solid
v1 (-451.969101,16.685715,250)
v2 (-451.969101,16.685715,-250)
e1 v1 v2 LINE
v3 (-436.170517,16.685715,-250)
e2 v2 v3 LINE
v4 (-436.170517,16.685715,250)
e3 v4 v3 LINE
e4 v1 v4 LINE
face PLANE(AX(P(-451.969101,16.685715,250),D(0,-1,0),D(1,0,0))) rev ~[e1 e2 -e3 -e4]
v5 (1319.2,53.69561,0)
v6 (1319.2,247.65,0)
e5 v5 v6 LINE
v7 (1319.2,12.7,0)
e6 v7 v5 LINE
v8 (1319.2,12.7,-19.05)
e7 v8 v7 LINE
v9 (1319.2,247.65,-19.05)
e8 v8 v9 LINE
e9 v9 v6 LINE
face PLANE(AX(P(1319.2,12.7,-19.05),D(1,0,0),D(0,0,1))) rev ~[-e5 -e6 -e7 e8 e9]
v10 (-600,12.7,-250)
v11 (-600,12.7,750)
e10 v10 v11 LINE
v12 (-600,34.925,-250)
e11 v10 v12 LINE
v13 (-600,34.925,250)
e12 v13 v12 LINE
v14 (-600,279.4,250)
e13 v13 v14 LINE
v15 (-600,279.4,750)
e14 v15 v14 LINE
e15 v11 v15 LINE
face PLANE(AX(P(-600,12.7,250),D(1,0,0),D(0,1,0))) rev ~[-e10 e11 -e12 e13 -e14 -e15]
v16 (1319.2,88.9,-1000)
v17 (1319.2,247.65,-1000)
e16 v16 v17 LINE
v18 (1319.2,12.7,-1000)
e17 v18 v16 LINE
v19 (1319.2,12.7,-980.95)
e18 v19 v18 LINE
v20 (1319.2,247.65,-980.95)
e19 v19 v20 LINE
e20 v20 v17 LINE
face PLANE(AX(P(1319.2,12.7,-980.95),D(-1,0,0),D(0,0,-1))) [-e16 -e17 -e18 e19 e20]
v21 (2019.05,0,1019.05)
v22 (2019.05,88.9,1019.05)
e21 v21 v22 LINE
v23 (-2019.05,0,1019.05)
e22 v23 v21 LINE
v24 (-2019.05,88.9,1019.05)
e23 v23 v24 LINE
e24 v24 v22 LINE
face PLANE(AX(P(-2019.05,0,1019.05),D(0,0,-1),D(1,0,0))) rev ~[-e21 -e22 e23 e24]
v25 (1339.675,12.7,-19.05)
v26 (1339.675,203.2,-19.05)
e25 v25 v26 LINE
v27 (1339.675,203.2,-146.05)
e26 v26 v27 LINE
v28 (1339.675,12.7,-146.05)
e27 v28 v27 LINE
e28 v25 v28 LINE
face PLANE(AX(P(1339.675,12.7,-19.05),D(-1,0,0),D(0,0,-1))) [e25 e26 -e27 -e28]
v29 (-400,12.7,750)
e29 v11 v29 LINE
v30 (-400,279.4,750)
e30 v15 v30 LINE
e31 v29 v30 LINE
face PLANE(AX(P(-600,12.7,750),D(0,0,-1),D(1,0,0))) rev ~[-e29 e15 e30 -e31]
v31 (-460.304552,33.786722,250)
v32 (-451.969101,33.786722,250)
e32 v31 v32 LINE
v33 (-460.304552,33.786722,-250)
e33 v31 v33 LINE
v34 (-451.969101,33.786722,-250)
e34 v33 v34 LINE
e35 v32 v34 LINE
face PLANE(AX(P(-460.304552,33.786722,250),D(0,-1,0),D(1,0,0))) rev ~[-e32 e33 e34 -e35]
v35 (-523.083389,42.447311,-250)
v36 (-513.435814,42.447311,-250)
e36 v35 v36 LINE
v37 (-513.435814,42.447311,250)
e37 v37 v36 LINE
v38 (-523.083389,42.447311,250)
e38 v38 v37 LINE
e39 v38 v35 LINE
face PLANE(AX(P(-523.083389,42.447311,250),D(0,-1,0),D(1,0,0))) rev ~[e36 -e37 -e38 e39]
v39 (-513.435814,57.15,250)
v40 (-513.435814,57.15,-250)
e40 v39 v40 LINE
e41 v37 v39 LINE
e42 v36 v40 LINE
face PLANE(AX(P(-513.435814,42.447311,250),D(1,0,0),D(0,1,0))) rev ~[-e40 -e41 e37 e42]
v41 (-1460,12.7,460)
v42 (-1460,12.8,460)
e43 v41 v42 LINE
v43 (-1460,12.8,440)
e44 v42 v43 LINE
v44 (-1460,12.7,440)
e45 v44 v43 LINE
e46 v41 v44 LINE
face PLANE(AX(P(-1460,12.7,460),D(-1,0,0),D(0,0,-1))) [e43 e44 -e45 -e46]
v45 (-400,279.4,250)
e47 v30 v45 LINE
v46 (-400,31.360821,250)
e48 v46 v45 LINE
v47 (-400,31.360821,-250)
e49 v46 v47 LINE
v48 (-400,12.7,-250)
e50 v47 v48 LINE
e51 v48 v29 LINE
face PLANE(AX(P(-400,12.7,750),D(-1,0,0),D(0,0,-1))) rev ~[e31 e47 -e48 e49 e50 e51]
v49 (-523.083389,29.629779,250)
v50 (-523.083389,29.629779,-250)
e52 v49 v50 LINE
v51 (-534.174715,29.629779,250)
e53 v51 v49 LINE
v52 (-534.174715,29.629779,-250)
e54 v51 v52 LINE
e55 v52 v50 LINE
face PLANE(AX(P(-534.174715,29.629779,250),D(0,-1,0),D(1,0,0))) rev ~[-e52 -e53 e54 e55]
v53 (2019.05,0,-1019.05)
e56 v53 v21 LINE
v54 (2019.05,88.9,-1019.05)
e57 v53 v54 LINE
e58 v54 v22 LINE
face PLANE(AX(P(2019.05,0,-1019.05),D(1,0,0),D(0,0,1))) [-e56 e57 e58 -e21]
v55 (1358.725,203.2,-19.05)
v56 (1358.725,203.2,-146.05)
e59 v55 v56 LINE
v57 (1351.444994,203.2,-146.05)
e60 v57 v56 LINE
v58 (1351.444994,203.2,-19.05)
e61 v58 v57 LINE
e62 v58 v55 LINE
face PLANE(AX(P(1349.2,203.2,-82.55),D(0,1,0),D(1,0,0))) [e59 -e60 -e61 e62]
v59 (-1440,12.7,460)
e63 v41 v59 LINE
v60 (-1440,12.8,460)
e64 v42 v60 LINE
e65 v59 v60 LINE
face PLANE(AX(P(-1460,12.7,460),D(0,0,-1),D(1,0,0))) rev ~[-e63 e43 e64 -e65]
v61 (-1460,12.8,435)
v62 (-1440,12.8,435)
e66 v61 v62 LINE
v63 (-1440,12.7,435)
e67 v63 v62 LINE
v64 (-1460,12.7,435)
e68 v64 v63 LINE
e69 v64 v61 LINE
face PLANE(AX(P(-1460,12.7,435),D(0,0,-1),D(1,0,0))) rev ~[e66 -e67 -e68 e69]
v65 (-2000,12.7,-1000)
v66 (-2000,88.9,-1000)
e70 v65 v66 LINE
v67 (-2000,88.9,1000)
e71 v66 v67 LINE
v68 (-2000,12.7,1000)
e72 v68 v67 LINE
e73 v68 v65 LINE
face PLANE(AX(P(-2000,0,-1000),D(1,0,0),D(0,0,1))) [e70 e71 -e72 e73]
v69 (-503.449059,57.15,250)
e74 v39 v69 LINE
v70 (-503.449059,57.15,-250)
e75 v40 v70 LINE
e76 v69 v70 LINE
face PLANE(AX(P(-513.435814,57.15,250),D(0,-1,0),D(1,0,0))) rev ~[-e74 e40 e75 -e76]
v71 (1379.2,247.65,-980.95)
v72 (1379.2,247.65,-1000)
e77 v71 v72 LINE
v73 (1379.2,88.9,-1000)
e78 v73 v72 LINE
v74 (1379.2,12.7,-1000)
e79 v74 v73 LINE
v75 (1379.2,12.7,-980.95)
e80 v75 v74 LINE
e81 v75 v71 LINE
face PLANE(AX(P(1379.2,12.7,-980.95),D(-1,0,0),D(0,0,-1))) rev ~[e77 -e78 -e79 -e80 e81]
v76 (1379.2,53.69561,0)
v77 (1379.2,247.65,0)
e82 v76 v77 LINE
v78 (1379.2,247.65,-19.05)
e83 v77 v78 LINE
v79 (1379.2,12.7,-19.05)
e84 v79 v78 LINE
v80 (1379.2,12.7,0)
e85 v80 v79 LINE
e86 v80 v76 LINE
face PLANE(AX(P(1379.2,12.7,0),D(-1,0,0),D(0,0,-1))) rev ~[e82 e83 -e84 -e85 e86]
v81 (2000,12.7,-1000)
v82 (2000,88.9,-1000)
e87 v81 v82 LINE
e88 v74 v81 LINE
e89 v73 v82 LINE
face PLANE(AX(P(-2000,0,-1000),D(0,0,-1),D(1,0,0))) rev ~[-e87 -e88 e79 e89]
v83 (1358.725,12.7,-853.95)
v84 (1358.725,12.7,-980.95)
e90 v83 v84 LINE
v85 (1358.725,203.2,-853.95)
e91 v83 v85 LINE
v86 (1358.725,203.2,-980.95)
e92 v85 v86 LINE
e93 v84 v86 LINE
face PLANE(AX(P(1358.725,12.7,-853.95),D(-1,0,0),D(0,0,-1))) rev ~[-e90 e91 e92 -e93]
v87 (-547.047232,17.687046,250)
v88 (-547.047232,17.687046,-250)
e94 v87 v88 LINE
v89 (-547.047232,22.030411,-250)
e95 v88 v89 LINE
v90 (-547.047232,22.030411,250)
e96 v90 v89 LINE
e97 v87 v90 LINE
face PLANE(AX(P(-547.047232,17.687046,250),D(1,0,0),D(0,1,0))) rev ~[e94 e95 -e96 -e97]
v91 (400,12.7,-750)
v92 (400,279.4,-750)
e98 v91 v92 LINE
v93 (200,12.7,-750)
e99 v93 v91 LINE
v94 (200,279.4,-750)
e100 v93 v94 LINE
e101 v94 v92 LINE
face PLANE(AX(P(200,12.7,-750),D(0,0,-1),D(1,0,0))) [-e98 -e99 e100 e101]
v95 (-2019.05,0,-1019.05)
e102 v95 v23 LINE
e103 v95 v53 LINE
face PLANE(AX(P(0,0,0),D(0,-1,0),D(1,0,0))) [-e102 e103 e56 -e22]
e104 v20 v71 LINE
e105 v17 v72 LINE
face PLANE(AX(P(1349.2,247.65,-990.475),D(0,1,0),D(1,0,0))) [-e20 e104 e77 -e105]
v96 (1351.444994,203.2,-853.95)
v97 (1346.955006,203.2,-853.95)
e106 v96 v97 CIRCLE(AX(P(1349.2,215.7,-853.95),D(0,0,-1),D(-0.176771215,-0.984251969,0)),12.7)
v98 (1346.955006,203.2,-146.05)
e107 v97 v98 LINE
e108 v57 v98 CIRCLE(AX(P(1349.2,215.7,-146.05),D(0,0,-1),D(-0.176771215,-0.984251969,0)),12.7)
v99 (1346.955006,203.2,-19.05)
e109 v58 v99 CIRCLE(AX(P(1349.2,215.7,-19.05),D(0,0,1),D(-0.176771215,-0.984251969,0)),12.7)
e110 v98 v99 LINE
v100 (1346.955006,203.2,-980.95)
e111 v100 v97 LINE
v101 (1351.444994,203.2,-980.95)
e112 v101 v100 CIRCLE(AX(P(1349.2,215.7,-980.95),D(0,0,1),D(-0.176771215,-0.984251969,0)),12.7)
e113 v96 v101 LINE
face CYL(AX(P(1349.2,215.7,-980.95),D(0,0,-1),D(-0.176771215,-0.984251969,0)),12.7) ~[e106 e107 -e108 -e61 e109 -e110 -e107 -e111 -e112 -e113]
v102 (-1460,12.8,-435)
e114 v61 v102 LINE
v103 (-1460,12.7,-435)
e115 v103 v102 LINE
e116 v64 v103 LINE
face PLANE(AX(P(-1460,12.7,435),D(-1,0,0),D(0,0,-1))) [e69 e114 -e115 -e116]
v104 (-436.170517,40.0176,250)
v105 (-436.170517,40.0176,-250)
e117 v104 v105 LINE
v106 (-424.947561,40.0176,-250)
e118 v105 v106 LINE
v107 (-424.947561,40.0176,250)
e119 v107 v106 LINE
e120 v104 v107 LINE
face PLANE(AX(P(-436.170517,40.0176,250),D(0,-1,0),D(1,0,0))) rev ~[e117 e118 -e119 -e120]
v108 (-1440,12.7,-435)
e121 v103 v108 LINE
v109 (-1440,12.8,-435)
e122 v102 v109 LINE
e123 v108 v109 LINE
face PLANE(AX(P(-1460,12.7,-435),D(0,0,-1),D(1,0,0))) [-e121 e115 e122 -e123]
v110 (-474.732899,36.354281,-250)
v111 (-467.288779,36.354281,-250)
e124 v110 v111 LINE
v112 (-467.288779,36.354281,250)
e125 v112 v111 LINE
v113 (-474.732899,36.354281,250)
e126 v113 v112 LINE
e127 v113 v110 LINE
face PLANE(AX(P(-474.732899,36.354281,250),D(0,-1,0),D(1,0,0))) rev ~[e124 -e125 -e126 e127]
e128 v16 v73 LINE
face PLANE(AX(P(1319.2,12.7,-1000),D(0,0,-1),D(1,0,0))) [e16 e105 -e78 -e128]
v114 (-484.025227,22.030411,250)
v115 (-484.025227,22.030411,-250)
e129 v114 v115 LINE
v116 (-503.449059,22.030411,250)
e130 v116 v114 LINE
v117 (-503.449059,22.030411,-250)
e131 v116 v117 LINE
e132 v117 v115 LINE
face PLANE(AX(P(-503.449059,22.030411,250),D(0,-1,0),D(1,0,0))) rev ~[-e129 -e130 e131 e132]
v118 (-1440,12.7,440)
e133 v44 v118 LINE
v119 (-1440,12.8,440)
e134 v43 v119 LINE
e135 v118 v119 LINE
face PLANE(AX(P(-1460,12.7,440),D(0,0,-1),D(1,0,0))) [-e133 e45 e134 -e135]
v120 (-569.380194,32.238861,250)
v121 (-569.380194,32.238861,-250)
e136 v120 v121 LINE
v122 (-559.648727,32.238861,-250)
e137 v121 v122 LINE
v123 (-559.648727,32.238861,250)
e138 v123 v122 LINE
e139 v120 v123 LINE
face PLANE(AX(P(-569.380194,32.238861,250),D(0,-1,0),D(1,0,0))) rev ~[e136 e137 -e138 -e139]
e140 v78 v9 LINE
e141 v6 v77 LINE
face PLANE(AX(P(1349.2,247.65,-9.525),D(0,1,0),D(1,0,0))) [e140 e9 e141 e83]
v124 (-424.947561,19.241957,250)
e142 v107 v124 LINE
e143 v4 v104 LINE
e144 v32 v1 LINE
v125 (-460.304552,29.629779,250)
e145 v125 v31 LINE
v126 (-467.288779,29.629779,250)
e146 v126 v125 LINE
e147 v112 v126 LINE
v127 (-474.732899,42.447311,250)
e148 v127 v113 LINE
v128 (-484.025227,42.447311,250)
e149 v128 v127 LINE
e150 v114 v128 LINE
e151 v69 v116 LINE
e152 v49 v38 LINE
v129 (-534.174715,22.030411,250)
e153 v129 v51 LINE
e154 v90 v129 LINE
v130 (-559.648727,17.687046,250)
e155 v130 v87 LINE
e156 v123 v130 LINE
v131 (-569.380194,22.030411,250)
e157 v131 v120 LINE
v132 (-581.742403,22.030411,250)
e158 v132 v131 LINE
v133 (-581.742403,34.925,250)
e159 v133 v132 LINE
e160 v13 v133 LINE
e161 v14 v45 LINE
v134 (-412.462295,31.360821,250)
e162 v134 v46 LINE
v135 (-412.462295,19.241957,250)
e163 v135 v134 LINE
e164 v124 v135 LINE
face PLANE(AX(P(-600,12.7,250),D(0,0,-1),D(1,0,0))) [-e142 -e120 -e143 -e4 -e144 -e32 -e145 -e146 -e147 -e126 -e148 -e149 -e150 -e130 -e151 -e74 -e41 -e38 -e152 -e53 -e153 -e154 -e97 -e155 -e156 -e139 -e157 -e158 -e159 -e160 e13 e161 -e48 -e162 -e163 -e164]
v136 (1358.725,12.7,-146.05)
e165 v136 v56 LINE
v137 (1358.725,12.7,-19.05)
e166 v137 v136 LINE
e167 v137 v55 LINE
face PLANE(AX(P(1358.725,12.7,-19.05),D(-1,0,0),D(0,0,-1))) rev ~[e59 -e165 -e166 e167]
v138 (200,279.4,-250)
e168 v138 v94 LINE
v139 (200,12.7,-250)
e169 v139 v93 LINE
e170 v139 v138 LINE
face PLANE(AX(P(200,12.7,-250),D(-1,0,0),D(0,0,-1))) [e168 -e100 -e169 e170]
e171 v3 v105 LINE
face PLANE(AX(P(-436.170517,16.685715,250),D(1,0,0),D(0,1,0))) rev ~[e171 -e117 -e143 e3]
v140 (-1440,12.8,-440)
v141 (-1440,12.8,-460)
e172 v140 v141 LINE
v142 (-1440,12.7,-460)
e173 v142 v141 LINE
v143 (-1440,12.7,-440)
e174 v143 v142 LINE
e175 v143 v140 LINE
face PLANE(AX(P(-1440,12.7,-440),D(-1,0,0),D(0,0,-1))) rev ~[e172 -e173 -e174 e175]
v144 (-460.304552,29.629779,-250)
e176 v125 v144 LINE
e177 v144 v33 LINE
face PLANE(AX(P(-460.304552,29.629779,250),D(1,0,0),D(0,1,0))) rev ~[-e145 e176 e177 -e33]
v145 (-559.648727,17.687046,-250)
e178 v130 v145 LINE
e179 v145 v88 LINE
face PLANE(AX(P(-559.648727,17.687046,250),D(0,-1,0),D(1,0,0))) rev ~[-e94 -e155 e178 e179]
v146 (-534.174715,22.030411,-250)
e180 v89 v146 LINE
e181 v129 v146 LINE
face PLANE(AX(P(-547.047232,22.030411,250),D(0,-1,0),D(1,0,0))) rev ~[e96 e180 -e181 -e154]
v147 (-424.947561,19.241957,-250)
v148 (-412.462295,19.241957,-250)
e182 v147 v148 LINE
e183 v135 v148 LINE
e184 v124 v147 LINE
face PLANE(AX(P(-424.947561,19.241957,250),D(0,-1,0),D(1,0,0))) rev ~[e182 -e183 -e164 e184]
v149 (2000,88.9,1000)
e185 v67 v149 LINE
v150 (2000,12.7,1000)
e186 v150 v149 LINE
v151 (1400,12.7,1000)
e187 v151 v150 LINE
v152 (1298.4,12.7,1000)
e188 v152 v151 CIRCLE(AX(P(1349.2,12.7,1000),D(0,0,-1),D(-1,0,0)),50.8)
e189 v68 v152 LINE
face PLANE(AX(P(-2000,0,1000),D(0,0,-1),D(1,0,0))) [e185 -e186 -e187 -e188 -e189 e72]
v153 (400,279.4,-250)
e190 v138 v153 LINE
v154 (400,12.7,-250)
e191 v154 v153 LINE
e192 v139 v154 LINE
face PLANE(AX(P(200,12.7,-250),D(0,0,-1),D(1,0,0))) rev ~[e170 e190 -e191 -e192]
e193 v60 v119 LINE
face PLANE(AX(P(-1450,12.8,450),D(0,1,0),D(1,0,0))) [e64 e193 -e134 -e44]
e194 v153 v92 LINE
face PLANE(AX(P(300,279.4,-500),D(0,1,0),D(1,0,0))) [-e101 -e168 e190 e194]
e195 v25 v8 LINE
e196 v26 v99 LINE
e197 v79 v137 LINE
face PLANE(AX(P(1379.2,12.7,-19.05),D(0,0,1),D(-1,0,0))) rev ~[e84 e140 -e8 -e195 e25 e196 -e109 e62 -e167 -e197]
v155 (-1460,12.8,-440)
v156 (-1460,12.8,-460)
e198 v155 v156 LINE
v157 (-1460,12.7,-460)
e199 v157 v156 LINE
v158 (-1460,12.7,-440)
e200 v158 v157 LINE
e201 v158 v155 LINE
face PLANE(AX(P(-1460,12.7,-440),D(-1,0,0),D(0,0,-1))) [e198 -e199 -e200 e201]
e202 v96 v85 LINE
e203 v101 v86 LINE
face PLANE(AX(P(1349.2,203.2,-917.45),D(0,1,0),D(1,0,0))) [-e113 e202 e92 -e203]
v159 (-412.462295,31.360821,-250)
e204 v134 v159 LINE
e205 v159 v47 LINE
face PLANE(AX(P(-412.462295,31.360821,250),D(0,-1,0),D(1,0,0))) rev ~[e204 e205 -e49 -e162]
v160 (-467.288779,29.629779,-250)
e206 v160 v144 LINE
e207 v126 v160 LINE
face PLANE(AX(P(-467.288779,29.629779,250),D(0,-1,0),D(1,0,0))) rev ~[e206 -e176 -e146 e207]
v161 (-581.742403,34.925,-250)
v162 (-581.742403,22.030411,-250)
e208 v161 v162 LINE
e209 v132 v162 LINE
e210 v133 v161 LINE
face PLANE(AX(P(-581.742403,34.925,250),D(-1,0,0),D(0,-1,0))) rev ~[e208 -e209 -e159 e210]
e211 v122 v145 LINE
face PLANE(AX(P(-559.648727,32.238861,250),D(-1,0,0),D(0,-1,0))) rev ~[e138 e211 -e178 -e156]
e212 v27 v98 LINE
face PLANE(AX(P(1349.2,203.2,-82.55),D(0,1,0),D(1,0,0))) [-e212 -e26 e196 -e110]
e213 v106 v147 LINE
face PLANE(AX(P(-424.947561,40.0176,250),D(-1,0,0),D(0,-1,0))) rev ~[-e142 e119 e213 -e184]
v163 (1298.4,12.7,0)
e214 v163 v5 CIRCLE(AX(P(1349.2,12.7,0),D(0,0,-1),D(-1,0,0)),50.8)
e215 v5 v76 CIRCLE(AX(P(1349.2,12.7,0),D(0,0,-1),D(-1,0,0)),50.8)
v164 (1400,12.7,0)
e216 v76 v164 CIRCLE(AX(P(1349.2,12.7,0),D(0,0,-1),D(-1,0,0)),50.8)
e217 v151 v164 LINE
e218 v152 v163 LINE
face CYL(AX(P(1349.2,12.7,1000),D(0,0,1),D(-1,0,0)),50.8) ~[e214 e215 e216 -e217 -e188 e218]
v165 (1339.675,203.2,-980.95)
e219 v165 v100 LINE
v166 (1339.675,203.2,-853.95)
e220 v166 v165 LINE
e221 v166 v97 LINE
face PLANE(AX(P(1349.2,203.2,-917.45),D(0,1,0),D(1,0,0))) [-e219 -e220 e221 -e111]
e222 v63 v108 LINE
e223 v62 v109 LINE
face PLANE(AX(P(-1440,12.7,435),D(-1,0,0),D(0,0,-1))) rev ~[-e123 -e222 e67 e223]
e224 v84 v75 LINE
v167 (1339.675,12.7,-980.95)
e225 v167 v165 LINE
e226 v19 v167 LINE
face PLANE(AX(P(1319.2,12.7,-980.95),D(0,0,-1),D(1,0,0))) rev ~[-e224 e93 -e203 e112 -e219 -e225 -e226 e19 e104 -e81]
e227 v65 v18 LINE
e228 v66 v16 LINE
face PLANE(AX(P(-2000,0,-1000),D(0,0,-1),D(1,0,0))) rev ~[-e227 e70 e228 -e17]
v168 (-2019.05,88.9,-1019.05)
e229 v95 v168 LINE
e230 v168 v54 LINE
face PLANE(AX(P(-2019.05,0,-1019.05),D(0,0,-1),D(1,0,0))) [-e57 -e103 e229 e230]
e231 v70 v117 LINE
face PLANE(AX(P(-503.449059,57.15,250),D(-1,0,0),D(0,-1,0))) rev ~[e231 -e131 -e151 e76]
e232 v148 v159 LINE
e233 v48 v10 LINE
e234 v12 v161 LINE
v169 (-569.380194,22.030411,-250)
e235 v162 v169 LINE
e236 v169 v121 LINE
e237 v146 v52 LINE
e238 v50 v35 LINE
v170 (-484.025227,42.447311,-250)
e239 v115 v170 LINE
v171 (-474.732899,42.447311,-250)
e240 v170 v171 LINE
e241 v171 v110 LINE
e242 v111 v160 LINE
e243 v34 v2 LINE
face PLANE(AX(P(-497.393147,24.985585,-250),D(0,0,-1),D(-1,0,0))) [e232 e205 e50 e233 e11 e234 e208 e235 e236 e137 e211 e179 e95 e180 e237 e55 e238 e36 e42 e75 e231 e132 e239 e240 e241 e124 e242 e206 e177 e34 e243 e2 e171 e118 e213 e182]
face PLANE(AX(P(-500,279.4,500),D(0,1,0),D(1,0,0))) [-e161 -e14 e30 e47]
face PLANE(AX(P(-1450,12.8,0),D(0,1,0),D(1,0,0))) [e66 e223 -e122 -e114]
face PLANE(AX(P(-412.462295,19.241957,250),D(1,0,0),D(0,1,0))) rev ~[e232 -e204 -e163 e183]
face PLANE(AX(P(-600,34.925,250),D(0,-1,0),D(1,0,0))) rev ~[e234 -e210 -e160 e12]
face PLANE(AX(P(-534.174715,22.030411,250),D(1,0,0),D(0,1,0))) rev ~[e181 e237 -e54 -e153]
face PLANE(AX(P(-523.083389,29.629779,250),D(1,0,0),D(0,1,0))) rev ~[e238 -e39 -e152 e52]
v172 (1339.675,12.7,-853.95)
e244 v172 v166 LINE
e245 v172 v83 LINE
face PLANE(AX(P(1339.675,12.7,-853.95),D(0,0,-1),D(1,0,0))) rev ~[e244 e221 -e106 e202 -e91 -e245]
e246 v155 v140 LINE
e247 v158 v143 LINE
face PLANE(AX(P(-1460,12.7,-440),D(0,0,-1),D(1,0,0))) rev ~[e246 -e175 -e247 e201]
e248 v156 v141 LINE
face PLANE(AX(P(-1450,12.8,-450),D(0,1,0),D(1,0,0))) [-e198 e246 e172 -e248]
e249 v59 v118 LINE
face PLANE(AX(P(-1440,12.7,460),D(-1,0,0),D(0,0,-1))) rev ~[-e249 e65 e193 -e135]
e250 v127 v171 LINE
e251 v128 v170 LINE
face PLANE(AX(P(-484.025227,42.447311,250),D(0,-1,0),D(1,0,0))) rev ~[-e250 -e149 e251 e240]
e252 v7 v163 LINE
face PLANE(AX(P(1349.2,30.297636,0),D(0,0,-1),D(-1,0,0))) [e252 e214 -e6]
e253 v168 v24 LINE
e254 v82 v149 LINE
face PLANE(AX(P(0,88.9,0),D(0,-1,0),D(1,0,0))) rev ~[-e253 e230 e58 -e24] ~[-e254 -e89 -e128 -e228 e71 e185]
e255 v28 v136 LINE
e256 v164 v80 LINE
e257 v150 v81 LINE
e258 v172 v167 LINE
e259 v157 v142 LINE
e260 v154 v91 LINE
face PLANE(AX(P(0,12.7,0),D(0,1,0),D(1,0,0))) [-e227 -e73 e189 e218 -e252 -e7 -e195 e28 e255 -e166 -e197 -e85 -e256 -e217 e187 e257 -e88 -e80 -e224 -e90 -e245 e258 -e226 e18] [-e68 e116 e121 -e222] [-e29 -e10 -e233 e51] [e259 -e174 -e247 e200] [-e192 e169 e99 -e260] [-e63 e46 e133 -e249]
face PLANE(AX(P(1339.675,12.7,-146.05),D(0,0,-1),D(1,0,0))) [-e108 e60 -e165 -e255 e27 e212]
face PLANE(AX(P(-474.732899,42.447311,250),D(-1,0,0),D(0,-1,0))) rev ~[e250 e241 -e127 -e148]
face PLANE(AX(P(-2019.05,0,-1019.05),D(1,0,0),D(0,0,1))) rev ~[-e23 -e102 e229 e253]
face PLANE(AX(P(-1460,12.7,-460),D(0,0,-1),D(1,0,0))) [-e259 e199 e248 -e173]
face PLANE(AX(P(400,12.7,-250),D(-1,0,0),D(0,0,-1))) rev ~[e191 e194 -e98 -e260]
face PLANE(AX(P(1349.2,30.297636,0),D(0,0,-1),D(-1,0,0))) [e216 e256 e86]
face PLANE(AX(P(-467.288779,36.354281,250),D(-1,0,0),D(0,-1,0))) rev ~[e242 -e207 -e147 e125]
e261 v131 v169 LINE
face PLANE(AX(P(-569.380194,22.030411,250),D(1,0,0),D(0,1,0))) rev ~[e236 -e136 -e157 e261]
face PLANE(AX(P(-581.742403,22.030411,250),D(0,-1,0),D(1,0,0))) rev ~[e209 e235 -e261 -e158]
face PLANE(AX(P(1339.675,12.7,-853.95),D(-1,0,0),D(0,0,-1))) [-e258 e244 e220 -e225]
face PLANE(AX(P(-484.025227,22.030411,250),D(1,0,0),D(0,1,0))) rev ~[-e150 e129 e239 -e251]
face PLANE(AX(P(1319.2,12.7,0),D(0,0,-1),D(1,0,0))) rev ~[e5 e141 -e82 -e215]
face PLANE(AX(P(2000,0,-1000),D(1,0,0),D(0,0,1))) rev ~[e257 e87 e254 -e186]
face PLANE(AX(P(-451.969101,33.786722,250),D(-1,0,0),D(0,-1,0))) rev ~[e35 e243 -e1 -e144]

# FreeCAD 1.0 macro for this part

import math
import FreeCAD as App
import Part
import Sketcher
Q = App.Units.Quantity

doc = App.newDocument("Part")
body = doc.addObject("PartDesign::Body", "Body")

sketch1 = body.newObject("Sketcher::SketchObject", "Sketch")
sketch1.AttachmentSupport = (doc.getObject("XZ_Plane"), [""])
sketch1.MapMode = "FlatFace"
sketch1.addGeometry([
    Part.LineSegment(App.Vector(-2000, -1000, 0), App.Vector(-2000, 1000, 0)),
    Part.LineSegment(App.Vector(-2000, 1000, 0), App.Vector(2000, 1000, 0)),
    Part.LineSegment(App.Vector(2000, 1000, 0), App.Vector(2000, -1000, 0)),
    Part.LineSegment(App.Vector(2000, -1000, 0), App.Vector(-2000, -1000, 0)),
], False)
sketch1.addConstraint([
    Sketcher.Constraint("Coincident", 0, 2, 1, 1),
    Sketcher.Constraint("Coincident", 1, 2, 2, 1),
    Sketcher.Constraint("Coincident", 2, 2, 3, 1),
    Sketcher.Constraint("Coincident", 3, 2, 0, 1),
    Sketcher.Constraint("Vertical", 0),
    Sketcher.Constraint("Horizontal", 1),
    Sketcher.Constraint("Vertical", 2),
    Sketcher.Constraint("Horizontal", 3),
    Sketcher.Constraint("Symmetric", 0, 2, 2, 2, -1, 1),
    Sketcher.Constraint("DistanceX", 1, 1, 1, 2, Q("4000 mm")),
    Sketcher.Constraint("DistanceY", 0, 1, 0, 2, Q("2000 mm")),
])
pad1 = body.newObject("PartDesign::Pad", "Pad")
pad1.Profile = sketch1
pad1.Length = 12.7
pad1.Reversed = True

sketch2 = body.newObject("Sketcher::SketchObject", "Sketch001")
sketch2.AttachmentSupport = (doc.getObject("XZ_Plane"), [""])
sketch2.MapMode = "FlatFace"
sketch2.addGeometry([
    Part.LineSegment(App.Vector(-2019, 1019, 0), App.Vector(-2019, -1019, 0)),
    Part.LineSegment(App.Vector(-2019, -1019, 0), App.Vector(2019, -1019, 0)),
    Part.LineSegment(App.Vector(2019, -1019, 0), App.Vector(2019, 1019, 0)),
    Part.LineSegment(App.Vector(2019, 1019, 0), App.Vector(-2019, 1019, 0)),
    Part.LineSegment(App.Vector(2000, -1000, 0), App.Vector(-2000, -1000, 0)),
    Part.LineSegment(App.Vector(-2000, -1000, 0), App.Vector(-2000, 1000, 0)),
    Part.LineSegment(App.Vector(-2000, 1000, 0), App.Vector(2000, 1000, 0)),
    Part.LineSegment(App.Vector(2000, 1000, 0), App.Vector(2000, -1000, 0)),
], False)
sketch2.addConstraint([
    Sketcher.Constraint("Coincident", 0, 2, 1, 1),
    Sketcher.Constraint("Coincident", 1, 2, 2, 1),
    Sketcher.Constraint("Coincident", 2, 2, 3, 1),
    Sketcher.Constraint("Coincident", 3, 2, 0, 1),
    Sketcher.Constraint("Coincident", 4, 2, 5, 1),
    Sketcher.Constraint("Coincident", 5, 2, 6, 1),
    Sketcher.Constraint("Coincident", 6, 2, 7, 1),
    Sketcher.Constraint("Coincident", 7, 2, 4, 1),
    Sketcher.Constraint("Vertical", 0),
    Sketcher.Constraint("Horizontal", 1),
    Sketcher.Constraint("Vertical", 2),
    Sketcher.Constraint("Horizontal", 3),
    Sketcher.Constraint("Horizontal", 4),
    Sketcher.Constraint("Vertical", 5),
    Sketcher.Constraint("Horizontal", 6),
    Sketcher.Constraint("Vertical", 7),
    Sketcher.Constraint("Symmetric", 0, 2, 2, 2, -1, 1),
    Sketcher.Constraint("Symmetric", 4, 2, 6, 2, -1, 1),
    Sketcher.Constraint("DistanceX", 4, 2, 4, 1, Q("4000 mm")),
    Sketcher.Constraint("DistanceY", 5, 1, 5, 2, Q("2000 mm")),
    Sketcher.Constraint("DistanceX", 1, 1, 1, 2, Q("4038.1 mm")),
    Sketcher.Constraint("DistanceY", 0, 2, 0, 1, Q("2038.1 mm")),
])
pad2 = body.newObject("PartDesign::Pad", "Pad001")
pad2.Profile = sketch2
pad2.Length = 88.9
pad2.Reversed = True

sketch3 = body.newObject("Sketcher::SketchObject", "Sketch002")
sketch3.AttachmentSupport = (doc.getObject("XZ_Plane"), [""])
sketch3.MapMode = "FlatFace"
sketch3.AttachmentOffset = App.Placement(App.Vector(0, 0, -12.7), App.Rotation())
sketch3.addGeometry([
    Part.LineSegment(App.Vector(-1460, 440, 0), App.Vector(-1460, 460, 0)),
    Part.LineSegment(App.Vector(-1460, 460, 0), App.Vector(-1440, 460, 0)),
    Part.LineSegment(App.Vector(-1440, 460, 0), App.Vector(-1440, 440, 0)),
    Part.LineSegment(App.Vector(-1440, 440, 0), App.Vector(-1460, 440, 0)),
    Part.LineSegment(App.Vector(-1460, -460, 0), App.Vector(-1460, -440, 0)),
    Part.LineSegment(App.Vector(-1460, -440, 0), App.Vector(-1440, -440, 0)),
    Part.LineSegment(App.Vector(-1440, -440, 0), App.Vector(-1440, -460, 0)),
    Part.LineSegment(App.Vector(-1440, -460, 0), App.Vector(-1460, -460, 0)),
], False)
sketch3.addConstraint([
    Sketcher.Constraint("Coincident", 0, 2, 1, 1),
    Sketcher.Constraint("Coincident", 1, 2, 2, 1),
    Sketcher.Constraint("Coincident", 2, 2, 3, 1),
    Sketcher.Constraint("Coincident", 3, 2, 0, 1),
    Sketcher.Constraint("Coincident", 4, 2, 5, 1),
    Sketcher.Constraint("Coincident", 5, 2, 6, 1),
    Sketcher.Constraint("Coincident", 6, 2, 7, 1),
    Sketcher.Constraint("Coincident", 7, 2, 4, 1),
    Sketcher.Constraint("Vertical", 0),
    Sketcher.Constraint("Horizontal", 1),
    Sketcher.Constraint("Vertical", 2),
    Sketcher.Constraint("Horizontal", 3),
    Sketcher.Constraint("Vertical", 4),
    Sketcher.Constraint("Horizontal", 5),
    Sketcher.Constraint("Vertical", 6),
    Sketcher.Constraint("Horizontal", 7),
    Sketcher.Constraint("Symmetric", 3, 2, 4, 2, -1),
    Sketcher.Constraint("Symmetric", 1, 2, 6, 2, -1),
    Sketcher.Constraint("Equal", 7, 0),
    Sketcher.Constraint("DistanceX", 1, 1, 1, 2, Q("20 mm")),
    Sketcher.Constraint("DistanceX", 0, 2, -1, 1, Q("1460 mm")),
    Sketcher.Constraint("DistanceY", -1, 1, 0, 2, Q("460 mm")),
])
pad3 = body.newObject("PartDesign::Pad", "Pad002")
pad3.Profile = sketch3
pad3.Length = 0.1
pad3.Reversed = True

sketch4 = body.newObject("Sketcher::SketchObject", "Sketch003")
sketch4.AttachmentSupport = (doc.getObject("XZ_Plane"), [""])
sketch4.MapMode = "FlatFace"
sketch4.AttachmentOffset = App.Placement(App.Vector(0, 0, -12.7), App.Rotation())
sketch4.addGeometry([
    Part.LineSegment(App.Vector(-1460, -435, 0), App.Vector(-1460, 435, 0)),
    Part.LineSegment(App.Vector(-1460, 435, 0), App.Vector(-1440, 435, 0)),
    Part.LineSegment(App.Vector(-1440, 435, 0), App.Vector(-1440, -435, 0)),
    Part.LineSegment(App.Vector(-1440, -435, 0), App.Vector(-1460, -435, 0)),
], False)
sketch4.addConstraint([
    Sketcher.Constraint("Coincident", 0, 2, 1, 1),
    Sketcher.Constraint("Coincident", 1, 2, 2, 1),
    Sketcher.Constraint("Coincident", 2, 2, 3, 1),
    Sketcher.Constraint("Coincident", 3, 2, 0, 1),
    Sketcher.Constraint("Vertical", 0),
    Sketcher.Constraint("Horizontal", 1),
    Sketcher.Constraint("Vertical", 2),
    Sketcher.Constraint("Horizontal", 3),
    Sketcher.Constraint("DistanceX", 1, 1, 1, 2, Q("20 mm")),
    Sketcher.Constraint("DistanceY", 0, 1, 0, 2, Q("870 mm")),
    Sketcher.Constraint("DistanceX", 0, 2, -1, 1, Q("1460 mm")),
    Sketcher.Constraint("DistanceY", -1, 1, 0, 2, Q("435 mm")),
])
pad4 = body.newObject("PartDesign::Pad", "Pad003")
pad4.Profile = sketch4
pad4.Length = 0.1
pad4.Reversed = True

sketch5 = body.newObject("Sketcher::SketchObject", "Sketch004")
sketch5.AttachmentSupport = (doc.getObject("XY_Plane"), [""])
sketch5.MapMode = "FlatFace"
sketch5.AttachmentOffset = App.Placement(App.Vector(0, 0, 1000), App.Rotation())
sketch5.addGeometry([
    Part.LineSegment(App.Vector(1400, 13, 0), App.Vector(1298, 13, 0)),
    Part.ArcOfCircle(Part.Circle(App.Vector(1349, 13, 0), App.Vector(0, 0, 1), 51), math.radians(0), math.radians(180)),
], False)
sketch5.addConstraint([
    Sketcher.Constraint("Coincident", 0, 1, 1, 1),
    Sketcher.Constraint("Coincident", 1, 2, 0, 2),
    Sketcher.Constraint("Horizontal", 0),
    Sketcher.Constraint("Horizontal", 1, 3, 0, 1),
    Sketcher.Constraint("Radius", 1, Q("50.8 mm")),
    Sketcher.Constraint("DistanceX", -1, 1, 0, 1, Q("1400 mm")),
    Sketcher.Constraint("DistanceY", -1, 1, 1, 3, Q("12.7 mm")),
])
pad5 = body.newObject("PartDesign::Pad", "Pad004")
pad5.Profile = sketch5
pad5.Length = 1000
pad5.Reversed = True

sketch6 = body.newObject("Sketcher::SketchObject", "Sketch005")
sketch6.AttachmentSupport = (doc.getObject("XZ_Plane"), [""])
sketch6.MapMode = "FlatFace"
sketch6.AttachmentOffset = App.Placement(App.Vector(0, 0, -12.7), App.Rotation())
sketch6.addGeometry([
    Part.LineSegment(App.Vector(1319, -19, 0), App.Vector(1319, 0, 0)),
    Part.LineSegment(App.Vector(1319, 0, 0), App.Vector(1379, 0, 0)),
    Part.LineSegment(App.Vector(1379, 0, 0), App.Vector(1379, -19, 0)),
    Part.LineSegment(App.Vector(1379, -19, 0), App.Vector(1319, -19, 0)),
    Part.LineSegment(App.Vector(1319, -1000, 0), App.Vector(1319, -981, 0)),
    Part.LineSegment(App.Vector(1319, -981, 0), App.Vector(1379, -981, 0)),
    Part.LineSegment(App.Vector(1379, -981, 0), App.Vector(1379, -1000, 0)),
    Part.LineSegment(App.Vector(1379, -1000, 0), App.Vector(1319, -1000, 0)),
], False)
sketch6.addConstraint([
    Sketcher.Constraint("Coincident", 0, 2, 1, 1),
    Sketcher.Constraint("Coincident", 1, 2, 2, 1),
    Sketcher.Constraint("Coincident", 2, 2, 3, 1),
    Sketcher.Constraint("Coincident", 3, 2, 0, 1),
    Sketcher.Constraint("Coincident", 4, 2, 5, 1),
    Sketcher.Constraint("Coincident", 5, 2, 6, 1),
    Sketcher.Constraint("Coincident", 6, 2, 7, 1),
    Sketcher.Constraint("Coincident", 7, 2, 4, 1),
    Sketcher.Constraint("Vertical", 0),
    Sketcher.Constraint("Horizontal", 1),
    Sketcher.Constraint("Vertical", 2),
    Sketcher.Constraint("Horizontal", 3),
    Sketcher.Constraint("Vertical", 4),
    Sketcher.Constraint("Horizontal", 5),
    Sketcher.Constraint("Vertical", 6),
    Sketcher.Constraint("Horizontal", 7),
    Sketcher.Constraint("PointOnObject", 0, 2, -1),
    Sketcher.Constraint("Vertical", 3, 2, 4, 2),
    Sketcher.Constraint("Vertical", 2, 2, 5, 2),
    Sketcher.Constraint("Equal", 2, 4),
    Sketcher.Constraint("DistanceX", 1, 1, 1, 2, Q("60 mm")),
    Sketcher.Constraint("DistanceY", 6, 2, -1, 1, Q("1000 mm")),
    Sketcher.Constraint("DistanceY", 0, 1, 0, 2, Q("19.05 mm")),
    Sketcher.Constraint("DistanceX", -1, 1, 0, 2, Q("1319.2 mm")),
])
pad6 = body.newObject("PartDesign::Pad", "Pad005")
pad6.Profile = sketch6
pad6.Length = 234.95
pad6.Reversed = True

sketch7 = body.newObject("Sketcher::SketchObject", "Sketch006")
sketch7.AttachmentSupport = (doc.getObject("XZ_Plane"), [""])
sketch7.MapMode = "FlatFace"
sketch7.AttachmentOffset = App.Placement(App.Vector(0, 0, -12.7), App.Rotation())
sketch7.addGeometry([
    Part.LineSegment(App.Vector(1340, -146, 0), App.Vector(1340, -19, 0)),
    Part.LineSegment(App.Vector(1340, -19, 0), App.Vector(1359, -19, 0)),
    Part.LineSegment(App.Vector(1359, -19, 0), App.Vector(1359, -146, 0)),
    Part.LineSegment(App.Vector(1359, -146, 0), App.Vector(1340, -146, 0)),
    Part.LineSegment(App.Vector(1340, -981, 0), App.Vector(1340, -854, 0)),
    Part.LineSegment(App.Vector(1340, -854, 0), App.Vector(1359, -854, 0)),
    Part.LineSegment(App.Vector(1359, -854, 0), App.Vector(1359, -981, 0)),
    Part.LineSegment(App.Vector(1359, -981, 0), App.Vector(1340, -981, 0)),
], False)
sketch7.addConstraint([
    Sketcher.Constraint("Coincident", 0, 2, 1, 1),
    Sketcher.Constraint("Coincident", 1, 2, 2, 1),
    Sketcher.Constraint("Coincident", 2, 2, 3, 1),
    Sketcher.Constraint("Coincident", 3, 2, 0, 1),
    Sketcher.Constraint("Coincident", 4, 2, 5, 1),
    Sketcher.Constraint("Coincident", 5, 2, 6, 1),
    Sketcher.Constraint("Coincident", 6, 2, 7, 1),
    Sketcher.Constraint("Coincident", 7, 2, 4, 1),
    Sketcher.Constraint("Vertical", 0),
    Sketcher.Constraint("Horizontal", 1),
    Sketcher.Constraint("Vertical", 2),
    Sketcher.Constraint("Horizontal", 3),
    Sketcher.Constraint("Vertical", 4),
    Sketcher.Constraint("Horizontal", 5),
    Sketcher.Constraint("Vertical", 6),
    Sketcher.Constraint("Horizontal", 7),
    Sketcher.Constraint("Vertical", 3, 2, 4, 2),
    Sketcher.Constraint("Vertical", 2, 2, 5, 2),
    Sketcher.Constraint("Equal", 2, 4),
    Sketcher.Constraint("DistanceY", 0, 1, 0, 2, Q("127 mm")),
    Sketcher.Constraint("DistanceX", 1, 1, 1, 2, Q("19.05 mm")),
    Sketcher.Constraint("DistanceY", 4, 2, 3, 2, Q("707.9 mm")),
    Sketcher.Constraint("DistanceY", 0, 2, -1, 1, Q("19.05 mm")),
    Sketcher.Constraint("DistanceX", -1, 1, 0, 2, Q("1339.675 mm")),
])
pad7 = body.newObject("PartDesign::Pad", "Pad006")
pad7.Profile = sketch7
pad7.Length = 190.5
pad7.Reversed = True

sketch8 = body.newObject("Sketcher::SketchObject", "Sketch007")
sketch8.AttachmentSupport = (doc.getObject("XY_Plane"), [""])
sketch8.MapMode = "FlatFace"
sketch8.AttachmentOffset = App.Placement(App.Vector(0, 0, -980.95), App.Rotation())
sketch8.addGeometry(Part.Circle(App.Vector(1349, 216, 0), App.Vector(0, 0, 1), 13), False)
sketch8.addConstraint([
    Sketcher.Constraint("Diameter", 0, Q("25.4 mm")),
    Sketcher.Constraint("DistanceX", -1, 1, 0, 3, Q("1349.2 mm")),
    Sketcher.Constraint("DistanceY", -1, 1, 0, 3, Q("215.7 mm")),
])
pad8 = body.newObject("PartDesign::Pad", "Pad007")
pad8.Profile = sketch8
pad8.Length = 961.9

sketch9 = body.newObject("Sketcher::SketchObject", "Sketch008")
sketch9.AttachmentSupport = (doc.getObject("XZ_Plane"), [""])
sketch9.MapMode = "FlatFace"
sketch9.AttachmentOffset = App.Placement(App.Vector(0, 0, -12.7), App.Rotation())
sketch9.addGeometry([
    Part.LineSegment(App.Vector(-600, 250, 0), App.Vector(-600, 750, 0)),
    Part.LineSegment(App.Vector(-600, 750, 0), App.Vector(-400, 750, 0)),
    Part.LineSegment(App.Vector(-400, 750, 0), App.Vector(-400, 250, 0)),
    Part.LineSegment(App.Vector(-400, 250, 0), App.Vector(-600, 250, 0)),
    Part.LineSegment(App.Vector(200, -750, 0), App.Vector(200, -250, 0)),
    Part.LineSegment(App.Vector(200, -250, 0), App.Vector(400, -250, 0)),
    Part.LineSegment(App.Vector(400, -250, 0), App.Vector(400, -750, 0)),
    Part.LineSegment(App.Vector(400, -750, 0), App.Vector(200, -750, 0)),
], False)
sketch9.addConstraint([
    Sketcher.Constraint("Coincident", 0, 2, 1, 1),
    Sketcher.Constraint("Coincident", 1, 2, 2, 1),
    Sketcher.Constraint("Coincident", 2, 2, 3, 1),
    Sketcher.Constraint("Coincident", 3, 2, 0, 1),
    Sketcher.Constraint("Coincident", 4, 2, 5, 1),
    Sketcher.Constraint("Coincident", 5, 2, 6, 1),
    Sketcher.Constraint("Coincident", 6, 2, 7, 1),
    Sketcher.Constraint("Coincident", 7, 2, 4, 1),
    Sketcher.Constraint("Vertical", 0),
    Sketcher.Constraint("Horizontal", 1),
    Sketcher.Constraint("Vertical", 2),
    Sketcher.Constraint("Horizontal", 3),
    Sketcher.Constraint("Vertical", 4),
    Sketcher.Constraint("Horizontal", 5),
    Sketcher.Constraint("Vertical", 6),
    Sketcher.Constraint("Horizontal", 7),
    Sketcher.Constraint("Symmetric", 2, 2, 5, 2, -1, 1),
    Sketcher.Constraint("Equal", 3, 5),
    Sketcher.Constraint("Equal", 2, 4),
    Sketcher.Constraint("DistanceX", 1, 1, 1, 2, Q("200 mm")),
    Sketcher.Constraint("DistanceY", 0, 1, 0, 2, Q("500 mm")),
    Sketcher.Constraint("DistanceX", 0, 2, -1, 1, Q("600 mm")),
    Sketcher.Constraint("DistanceY", -1, 1, 0, 2, Q("750 mm")),
])
pad9 = body.newObject("PartDesign::Pad", "Pad008")
pad9.Profile = sketch9
pad9.Length = 266.7
pad9.Reversed = True

sketch10 = body.newObject("Sketcher::SketchObject", "Sketch009")
sketch10.AttachmentSupport = (doc.getObject("XY_Plane"), [""])
sketch10.MapMode = "FlatFace"
sketch10.AttachmentOffset = App.Placement(App.Vector(0, 0, 250), App.Rotation())
sketch10.addGeometry([
    Part.LineSegment(App.Vector(-400, 12.7, 0), App.Vector(-600, 12.7, 0)),
    Part.LineSegment(App.Vector(-600, 12.7, 0), App.Vector(-600, 34.9, 0)),
    Part.LineSegment(App.Vector(-600, 34.9, 0), App.Vector(-581.7, 34.9, 0)),
    Part.LineSegment(App.Vector(-581.7, 34.9, 0), App.Vector(-581.7, 22, 0)),
    Part.LineSegment(App.Vector(-581.7, 22, 0), App.Vector(-569.4, 22, 0)),
    Part.LineSegment(App.Vector(-569.4, 22, 0), App.Vector(-569.4, 32.2, 0)),
    Part.LineSegment(App.Vector(-569.4, 32.2, 0), App.Vector(-559.6, 32.2, 0)),
    Part.LineSegment(App.Vector(-559.6, 32.2, 0), App.Vector(-559.6, 17.7, 0)),
    Part.LineSegment(App.Vector(-559.6, 17.7, 0), App.Vector(-547, 17.7, 0)),
    Part.LineSegment(App.Vector(-547, 17.7, 0), App.Vector(-547, 22, 0)),
    Part.LineSegment(App.Vector(-547, 22, 0), App.Vector(-534.2, 22, 0)),
    Part.LineSegment(App.Vector(-534.2, 22, 0), App.Vector(-534.2, 29.6, 0)),
    Part.LineSegment(App.Vector(-534.2, 29.6, 0), App.Vector(-523.1, 29.6, 0)),
    Part.LineSegment(App.Vector(-523.1, 29.6, 0), App.Vector(-523.1, 42.4, 0)),
    Part.LineSegment(App.Vector(-523.1, 42.4, 0), App.Vector(-513.4, 42.4, 0)),
    Part.LineSegment(App.Vector(-513.4, 42.4, 0), App.Vector(-513.4, 57.1, 0)),
    Part.LineSegment(App.Vector(-513.4, 57.1, 0), App.Vector(-503.4, 57.1, 0)),
    Part.LineSegment(App.Vector(-503.4, 57.1, 0), App.Vector(-503.4, 22, 0)),
    Part.LineSegment(App.Vector(-503.4, 22, 0), App.Vector(-484, 22, 0)),
    Part.LineSegment(App.Vector(-484, 22, 0), App.Vector(-484, 42.4, 0)),
    Part.LineSegment(App.Vector(-484, 42.4, 0), App.Vector(-474.7, 42.4, 0)),
    Part.LineSegment(App.Vector(-474.7, 42.4, 0), App.Vector(-474.7, 36.4, 0)),
    Part.LineSegment(App.Vector(-474.7, 36.4, 0), App.Vector(-467.3, 36.4, 0)),
    Part.LineSegment(App.Vector(-467.3, 36.4, 0), App.Vector(-467.3, 29.6, 0)),
    Part.LineSegment(App.Vector(-467.3, 29.6, 0), App.Vector(-460.3, 29.6, 0)),
    Part.LineSegment(App.Vector(-460.3, 29.6, 0), App.Vector(-460.3, 33.8, 0)),
    Part.LineSegment(App.Vector(-460.3, 33.8, 0), App.Vector(-452, 33.8, 0)),
    Part.LineSegment(App.Vector(-452, 33.8, 0), App.Vector(-452, 16.7, 0)),
    Part.LineSegment(App.Vector(-452, 16.7, 0), App.Vector(-436.2, 16.7, 0)),
    Part.LineSegment(App.Vector(-436.2, 16.7, 0), App.Vector(-436.2, 40, 0)),
    Part.LineSegment(App.Vector(-436.2, 40, 0), App.Vector(-424.9, 40, 0)),
    Part.LineSegment(App.Vector(-424.9, 40, 0), App.Vector(-424.9, 19.2, 0)),
    Part.LineSegment(App.Vector(-424.9, 19.2, 0), App.Vector(-412.5, 19.2, 0)),
    Part.LineSegment(App.Vector(-412.5, 19.2, 0), App.Vector(-412.5, 31.4, 0)),
    Part.LineSegment(App.Vector(-412.5, 31.4, 0), App.Vector(-400, 31.4, 0)),
    Part.LineSegment(App.Vector(-400, 31.4, 0), App.Vector(-400, 12.7, 0)),
], False)
sketch10.addConstraint([
    Sketcher.Constraint("Coincident", 0, 2, 1, 1),
    Sketcher.Constraint("Coincident", 1, 2, 2, 1),
    Sketcher.Constraint("Coincident", 2, 2, 3, 1),
    Sketcher.Constraint("Coincident", 3, 2, 4, 1),
    Sketcher.Constraint("Coincident", 4, 2, 5, 1),
    Sketcher.Constraint("Coincident", 5, 2, 6, 1),
    Sketcher.Constraint("Coincident", 6, 2, 7, 1),
    Sketcher.Constraint("Coincident", 7, 2, 8, 1),
    Sketcher.Constraint("Coincident", 8, 2, 9, 1),
    Sketcher.Constraint("Coincident", 9, 2, 10, 1),
    Sketcher.Constraint("Coincident", 10, 2, 11, 1),
    Sketcher.Constraint("Coincident", 11, 2, 12, 1),
    Sketcher.Constraint("Coincident", 12, 2, 13, 1),
    Sketcher.Constraint("Coincident", 13, 2, 14, 1),
    Sketcher.Constraint("Coincident", 14, 2, 15, 1),
    Sketcher.Constraint("Coincident", 15, 2, 16, 1),
    Sketcher.Constraint("Coincident", 16, 2, 17, 1),
    Sketcher.Constraint("Coincident", 17, 2, 18, 1),
    Sketcher.Constraint("Coincident", 18, 2, 19, 1),
    Sketcher.Constraint("Coincident", 19, 2, 20, 1),
    Sketcher.Constraint("Coincident", 20, 2, 21, 1),
    Sketcher.Constraint("Coincident", 21, 2, 22, 1),
    Sketcher.Constraint("Coincident", 22, 2, 23, 1),
    Sketcher.Constraint("Coincident", 23, 2, 24, 1),
    Sketcher.Constraint("Coincident", 24, 2, 25, 1),
    Sketcher.Constraint("Coincident", 25, 2, 26, 1),
    Sketcher.Constraint("Coincident", 26, 2, 27, 1),
    Sketcher.Constraint("Coincident", 27, 2, 28, 1),
    Sketcher.Constraint("Coincident", 28, 2, 29, 1),
    Sketcher.Constraint("Coincident", 29, 2, 30, 1),
    Sketcher.Constraint("Coincident", 30, 2, 31, 1),
    Sketcher.Constraint("Coincident", 31, 2, 32, 1),
    Sketcher.Constraint("Coincident", 32, 2, 33, 1),
    Sketcher.Constraint("Coincident", 33, 2, 34, 1),
    Sketcher.Constraint("Coincident", 34, 2, 35, 1),
    Sketcher.Constraint("Coincident", 35, 2, 0, 1),
    Sketcher.Constraint("Horizontal", 0),
    Sketcher.Constraint("Vertical", 1),
    Sketcher.Constraint("Horizontal", 2),
    Sketcher.Constraint("Vertical", 3),
    Sketcher.Constraint("Horizontal", 4),
    Sketcher.Constraint("Vertical", 5),
    Sketcher.Constraint("Horizontal", 6),
    Sketcher.Constraint("Vertical", 7),
    Sketcher.Constraint("Horizontal", 8),
    Sketcher.Constraint("Vertical", 9),
    Sketcher.Constraint("Horizontal", 10),
    Sketcher.Constraint("Vertical", 11),
    Sketcher.Constraint("Horizontal", 12),
    Sketcher.Constraint("Vertical", 13),
    Sketcher.Constraint("Horizontal", 14),
    Sketcher.Constraint("Vertical", 15),
    Sketcher.Constraint("Horizontal", 16),
    Sketcher.Constraint("Vertical", 17),
    Sketcher.Constraint("Horizontal", 18),
    Sketcher.Constraint("Vertical", 19),
    Sketcher.Constraint("Horizontal", 20),
    Sketcher.Constraint("Vertical", 21),
    Sketcher.Constraint("Horizontal", 22),
    Sketcher.Constraint("Vertical", 23),
    Sketcher.Constraint("Horizontal", 24),
    Sketcher.Constraint("Vertical", 25),
    Sketcher.Constraint("Horizontal", 26),
    Sketcher.Constraint("Vertical", 27),
    Sketcher.Constraint("Horizontal", 28),
    Sketcher.Constraint("Vertical", 29),
    Sketcher.Constraint("Horizontal", 30),
    Sketcher.Constraint("Vertical", 31),
    Sketcher.Constraint("Horizontal", 32),
    Sketcher.Constraint("Vertical", 33),
    Sketcher.Constraint("Horizontal", 34),
    Sketcher.Constraint("Vertical", 35),
    Sketcher.Constraint("Horizontal", 4, 2, 9, 2),
    Sketcher.Constraint("Horizontal", 10, 2, 17, 2),
    Sketcher.Constraint("Horizontal", 14, 2, 19, 2),
    Sketcher.Constraint("Horizontal", 12, 2, 23, 2),
    Sketcher.Constraint("DistanceX", 0, 2, 0, 1, Q("200 mm")),
    Sketcher.Constraint("DistanceX", 0, 2, -1, 1, Q("600 mm")),
    Sketcher.Constraint("DistanceY", -1, 1, 0, 2, Q("12.7 mm")),
    Sketcher.Constraint("DistanceY", 1, 1, 1, 2, Q("22.225 mm")),
    Sketcher.Constraint("DistanceY", -1, 1, 15, 2, Q("57.15 mm")),
    Sketcher.Constraint("DistanceY", 19, 1, 19, 2, Q("20.416901 mm")),
    Sketcher.Constraint("DistanceX", 4, 1, 4, 2, Q("12.362209 mm")),
    Sketcher.Constraint("DistanceX", 18, 1, 18, 2, Q("19.423831 mm")),
    Sketcher.Constraint("DistanceX", 20, 1, 20, 2, Q("9.292328 mm")),
    Sketcher.Constraint("DistanceX", 22, 1, 22, 2, Q("7.44412 mm")),
    Sketcher.Constraint("DistanceX", 26, 1, 26, 2, Q("8.335452 mm")),
    Sketcher.Constraint("DistanceY", 3, 2, 3, 1, Q("12.894589 mm")),
    Sketcher.Constraint("DistanceY", 5, 1, 5, 2, Q("10.20845 mm")),
    Sketcher.Constraint("DistanceY", 11, 1, 11, 2, Q("7.599368 mm")),
    Sketcher.Constraint("DistanceY", 21, 2, 21, 1, Q("6.09303 mm")),
    Sketcher.Constraint("DistanceY", 35, 2, 35, 1, Q("18.660821 mm")),
    Sketcher.Constraint("DistanceX", 20, 2, -1, 1, Q("474.732899 mm")),
    Sketcher.Constraint("DistanceX", 26, 2, -1, 1, Q("451.969101 mm")),
    Sketcher.Constraint("DistanceY", -1, 1, 29, 2, Q("40.0176 mm")),
    Sketcher.Constraint("DistanceX", 11, 2, 14, 2, Q("20.738901 mm")),
    Sketcher.Constraint("DistanceX", 2, 1, 2, 2, Q("18.257597 mm")),
    Sketcher.Constraint("DistanceX", 6, 1, 6, 2, Q("9.731467 mm")),
    Sketcher.Constraint("DistanceX", 8, 1, 8, 2, Q("12.601495 mm")),
    Sketcher.Constraint("DistanceX", 10, 1, 10, 2, Q("12.872517 mm")),
    Sketcher.Constraint("DistanceX", 12, 1, 12, 2, Q("11.091327 mm")),
    Sketcher.Constraint("DistanceX", 28, 1, 28, 2, Q("15.798584 mm")),
    Sketcher.Constraint("DistanceX", 30, 1, 30, 2, Q("11.222956 mm")),
    Sketcher.Constraint("DistanceX", 32, 1, 32, 2, Q("12.485266 mm")),
    Sketcher.Constraint("DistanceY", 7, 2, 7, 1, Q("14.551815 mm")),
    Sketcher.Constraint("DistanceY", 25, 1, 25, 2, Q("4.156943 mm")),
    Sketcher.Constraint("DistanceY", 27, 2, 27, 1, Q("17.101007 mm")),
    Sketcher.Constraint("DistanceY", 31, 2, 31, 1, Q("20.775643 mm")),
])
pad10 = body.newObject("PartDesign::Pad", "Pad009")
pad10.Profile = sketch10
pad10.Length = 500
pad10.Reversed = True

doc.recompute()
